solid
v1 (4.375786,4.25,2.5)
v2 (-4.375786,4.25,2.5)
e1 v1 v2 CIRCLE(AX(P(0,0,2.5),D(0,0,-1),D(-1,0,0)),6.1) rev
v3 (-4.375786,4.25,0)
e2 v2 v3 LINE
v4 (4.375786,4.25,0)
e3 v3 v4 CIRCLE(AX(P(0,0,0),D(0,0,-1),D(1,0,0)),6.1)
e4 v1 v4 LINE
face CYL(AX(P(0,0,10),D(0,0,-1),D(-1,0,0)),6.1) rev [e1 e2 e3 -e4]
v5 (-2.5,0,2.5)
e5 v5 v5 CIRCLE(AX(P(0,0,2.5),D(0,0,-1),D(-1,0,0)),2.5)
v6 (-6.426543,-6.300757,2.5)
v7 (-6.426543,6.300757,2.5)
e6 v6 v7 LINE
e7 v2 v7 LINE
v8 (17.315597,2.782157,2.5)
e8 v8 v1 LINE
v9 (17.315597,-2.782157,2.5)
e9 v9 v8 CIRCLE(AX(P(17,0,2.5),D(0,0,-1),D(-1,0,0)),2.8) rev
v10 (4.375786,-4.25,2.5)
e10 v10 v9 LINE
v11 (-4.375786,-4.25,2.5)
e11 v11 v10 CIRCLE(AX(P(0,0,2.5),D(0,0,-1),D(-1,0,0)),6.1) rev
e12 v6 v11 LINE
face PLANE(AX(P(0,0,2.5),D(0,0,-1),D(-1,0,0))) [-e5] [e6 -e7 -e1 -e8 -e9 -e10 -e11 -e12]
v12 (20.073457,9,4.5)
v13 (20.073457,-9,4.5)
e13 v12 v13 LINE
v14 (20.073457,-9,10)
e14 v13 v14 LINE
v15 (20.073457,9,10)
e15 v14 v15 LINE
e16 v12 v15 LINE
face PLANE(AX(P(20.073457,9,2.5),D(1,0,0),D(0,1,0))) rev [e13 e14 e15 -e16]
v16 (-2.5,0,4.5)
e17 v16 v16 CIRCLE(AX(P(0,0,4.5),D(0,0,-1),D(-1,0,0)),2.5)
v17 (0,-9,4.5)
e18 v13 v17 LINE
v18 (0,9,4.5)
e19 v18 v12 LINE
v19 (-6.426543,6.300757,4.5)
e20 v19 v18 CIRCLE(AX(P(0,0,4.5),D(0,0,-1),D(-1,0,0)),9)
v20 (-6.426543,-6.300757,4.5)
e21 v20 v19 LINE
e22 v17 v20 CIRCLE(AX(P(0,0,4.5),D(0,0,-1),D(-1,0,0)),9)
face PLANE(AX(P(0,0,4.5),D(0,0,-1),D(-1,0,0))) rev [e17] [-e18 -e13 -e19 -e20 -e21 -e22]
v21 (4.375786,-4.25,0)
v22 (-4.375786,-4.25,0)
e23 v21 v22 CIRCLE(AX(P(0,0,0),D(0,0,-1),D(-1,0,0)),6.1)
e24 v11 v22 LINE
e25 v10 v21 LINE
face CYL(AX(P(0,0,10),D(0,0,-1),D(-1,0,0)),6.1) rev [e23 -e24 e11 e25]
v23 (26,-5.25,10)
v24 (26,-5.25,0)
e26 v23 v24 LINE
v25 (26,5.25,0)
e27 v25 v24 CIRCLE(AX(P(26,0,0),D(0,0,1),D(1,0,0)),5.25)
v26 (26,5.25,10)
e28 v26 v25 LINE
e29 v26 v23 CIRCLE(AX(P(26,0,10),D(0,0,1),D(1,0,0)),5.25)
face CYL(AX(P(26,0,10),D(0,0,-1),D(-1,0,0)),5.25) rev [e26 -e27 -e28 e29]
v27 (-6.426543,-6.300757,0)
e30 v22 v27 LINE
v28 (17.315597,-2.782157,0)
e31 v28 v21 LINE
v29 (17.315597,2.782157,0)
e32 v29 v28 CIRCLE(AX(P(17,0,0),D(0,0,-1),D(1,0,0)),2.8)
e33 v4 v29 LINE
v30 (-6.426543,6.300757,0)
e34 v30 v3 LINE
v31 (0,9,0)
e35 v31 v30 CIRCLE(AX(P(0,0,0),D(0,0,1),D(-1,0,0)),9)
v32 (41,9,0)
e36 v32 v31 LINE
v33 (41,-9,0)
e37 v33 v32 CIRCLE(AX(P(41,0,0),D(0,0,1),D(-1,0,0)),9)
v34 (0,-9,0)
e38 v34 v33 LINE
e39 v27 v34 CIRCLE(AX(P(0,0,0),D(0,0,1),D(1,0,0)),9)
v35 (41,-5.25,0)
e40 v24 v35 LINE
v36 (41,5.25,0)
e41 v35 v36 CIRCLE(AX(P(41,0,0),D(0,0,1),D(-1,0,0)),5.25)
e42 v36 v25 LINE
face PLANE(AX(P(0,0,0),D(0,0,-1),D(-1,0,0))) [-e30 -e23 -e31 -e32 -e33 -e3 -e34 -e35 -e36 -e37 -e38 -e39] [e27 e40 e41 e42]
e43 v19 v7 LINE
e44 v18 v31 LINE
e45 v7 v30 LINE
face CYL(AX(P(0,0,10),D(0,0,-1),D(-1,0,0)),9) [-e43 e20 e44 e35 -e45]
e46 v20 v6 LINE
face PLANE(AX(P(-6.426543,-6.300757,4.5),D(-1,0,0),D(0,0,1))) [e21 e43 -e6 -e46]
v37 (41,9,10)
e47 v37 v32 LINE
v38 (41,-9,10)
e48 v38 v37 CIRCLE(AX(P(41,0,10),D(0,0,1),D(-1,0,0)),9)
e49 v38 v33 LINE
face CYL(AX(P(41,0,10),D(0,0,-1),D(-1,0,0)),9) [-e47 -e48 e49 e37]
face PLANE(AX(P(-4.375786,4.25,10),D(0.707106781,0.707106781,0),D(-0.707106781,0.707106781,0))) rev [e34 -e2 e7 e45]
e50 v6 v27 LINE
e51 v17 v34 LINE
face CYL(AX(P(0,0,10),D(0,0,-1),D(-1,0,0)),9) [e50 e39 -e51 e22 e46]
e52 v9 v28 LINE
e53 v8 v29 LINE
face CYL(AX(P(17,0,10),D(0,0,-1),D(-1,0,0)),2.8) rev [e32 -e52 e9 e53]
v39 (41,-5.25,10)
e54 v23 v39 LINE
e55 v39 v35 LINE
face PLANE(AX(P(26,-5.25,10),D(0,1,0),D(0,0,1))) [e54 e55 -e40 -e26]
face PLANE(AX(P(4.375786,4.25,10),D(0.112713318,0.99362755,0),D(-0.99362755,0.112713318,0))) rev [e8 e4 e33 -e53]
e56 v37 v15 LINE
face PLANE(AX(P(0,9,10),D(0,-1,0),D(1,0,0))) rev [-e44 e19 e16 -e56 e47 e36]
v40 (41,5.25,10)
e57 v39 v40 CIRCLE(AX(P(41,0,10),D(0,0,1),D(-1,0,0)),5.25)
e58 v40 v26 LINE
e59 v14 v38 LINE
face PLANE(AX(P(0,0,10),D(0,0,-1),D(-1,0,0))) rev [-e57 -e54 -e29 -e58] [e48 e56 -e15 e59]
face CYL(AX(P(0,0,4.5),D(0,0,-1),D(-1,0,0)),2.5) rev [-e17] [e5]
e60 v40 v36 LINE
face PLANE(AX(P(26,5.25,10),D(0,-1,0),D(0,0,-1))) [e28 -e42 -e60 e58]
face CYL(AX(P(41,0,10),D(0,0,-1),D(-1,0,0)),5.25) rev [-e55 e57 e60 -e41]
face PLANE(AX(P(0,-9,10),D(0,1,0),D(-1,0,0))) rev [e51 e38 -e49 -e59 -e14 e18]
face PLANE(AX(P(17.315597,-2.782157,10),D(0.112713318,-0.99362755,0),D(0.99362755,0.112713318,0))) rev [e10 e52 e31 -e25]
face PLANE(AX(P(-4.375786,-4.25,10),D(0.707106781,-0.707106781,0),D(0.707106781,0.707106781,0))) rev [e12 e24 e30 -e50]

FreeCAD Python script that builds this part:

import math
import FreeCAD as App
import Part
import Sketcher

V = App.Vector


def add_polygon(sketch, points):
    """Adds a closed chain of lines whose ends are joined by coincident constraints."""
    first, n = sketch.GeometryCount, len(points)
    for a, b in zip(points, points[1:] + points[:1]):
        sketch.addGeometry(Part.LineSegment(App.Vector(*a, 0), App.Vector(*b, 0)), False)
    for i in range(n):
        sketch.addConstraint(Sketcher.Constraint("Coincident", first + i, 2, first + (i + 1) % n, 1))

doc = App.newDocument("Part")
params = doc.addObject("Spreadsheet::Sheet", "Params")
for row, (alias, value) in enumerate([
    ("sketch1_radius", "9 mm"),
    ("sketch1_radius2", "6.1 mm"),
    ("sketch1_radius3", "2.8 mm"),
    ("sketch1_width", "41 mm"),
    ("sketch1_width2", "15 mm"),
    ("pad1_length", "10 mm"),
    ("sketch2_height", "18 mm"),
    ("sketch2_width", "26.5 mm"),
    ("pocket1_length", "7.5 mm"),
    ("sketch3_diameter", "5 mm"),
    ("sketch3_radius", "9 mm"),
    ("pad2_length", "2 mm"),
], start=1):
    params.set(f"A{row}", alias)
    params.set(f"B{row}", "=" + value)
    params.setAlias(f"B{row}", alias)

body = doc.addObject("PartDesign::Body", "Body")

# Sketch on XY plane
sketch1 = body.newObject("Sketcher::SketchObject", "Sketch")
sketch1.AttachmentSupport = (doc.getObject("XY_Plane"), [""])
sketch1.MapMode = "FlatFace"
sketch1.addGeometry(Part.LineSegment(V(-6.426543, 6.300757, 0), V(-4.375786, 4.25, 0)), False)
sketch1.addGeometry(Part.ArcOfCircle(Part.Circle(V(0, 0, 0), V(0, 0, 1), 6.1), math.radians(44.164543), math.radians(135.835457)), False)
sketch1.addGeometry(Part.LineSegment(V(4.375786, 4.25, 0), V(17.315597, 2.782157, 0)), False)
sketch1.addGeometry(Part.ArcOfCircle(Part.Circle(V(17, 0, 0), V(0, 0, 1), 2.8), math.radians(-83.52825), math.radians(83.52825)), False)
sketch1.addGeometry(Part.LineSegment(V(17.315597, -2.782157, 0), V(4.375786, -4.25, 0)), False)
sketch1.addGeometry(Part.ArcOfCircle(Part.Circle(V(0, 0, 0), V(0, 0, 1), 6.1), math.radians(-135.835457), math.radians(-44.164543)), False)
sketch1.addGeometry(Part.LineSegment(V(-4.375786, -4.25, 0), V(-6.426543, -6.300757, 0)), False)
sketch1.addGeometry(Part.ArcOfCircle(Part.Circle(V(0, 0, 0), V(0, 0, 1), 9), math.radians(-135.566244), math.radians(-90)), False)
sketch1.addGeometry(Part.LineSegment(V(0, -9, 0), V(41, -9, 0)), False)
sketch1.addGeometry(Part.ArcOfCircle(Part.Circle(V(41, 0, 0), V(0, 0, 1), 9), math.radians(-90), math.radians(90)), False)
sketch1.addGeometry(Part.LineSegment(V(41, 9, 0), V(0, 9, 0)), False)
sketch1.addGeometry(Part.ArcOfCircle(Part.Circle(V(0, 0, 0), V(0, 0, 1), 9), math.radians(90), math.radians(135.566244)), False)
sketch1.addGeometry(Part.LineSegment(V(26, 5.25, 0), V(41, 5.25, 0)), False)
sketch1.addGeometry(Part.ArcOfCircle(Part.Circle(V(41, 0, 0), V(0, 0, 1), 5.25), math.radians(-90), math.radians(90)), False)
sketch1.addGeometry(Part.LineSegment(V(41, -5.25, 0), V(26, -5.25, 0)), False)
sketch1.addGeometry(Part.ArcOfCircle(Part.Circle(V(26, 0, 0), V(0, 0, 1), 5.25), math.radians(90), math.radians(270)), False)
sketch1.addConstraint(Sketcher.Constraint("Coincident", 0, 2, 1, 2))
sketch1.addConstraint(Sketcher.Constraint("Coincident", 1, 1, 2, 1))
sketch1.addConstraint(Sketcher.Constraint("Tangent", 2, 2, 3, 2))
sketch1.addConstraint(Sketcher.Constraint("Tangent", 3, 1, 4, 1))
sketch1.addConstraint(Sketcher.Constraint("Coincident", 4, 2, 5, 2))
sketch1.addConstraint(Sketcher.Constraint("Coincident", 5, 1, 6, 1))
sketch1.addConstraint(Sketcher.Constraint("Coincident", 6, 2, 7, 1))
sketch1.addConstraint(Sketcher.Constraint("Tangent", 7, 2, 8, 1))
sketch1.addConstraint(Sketcher.Constraint("Tangent", 8, 2, 9, 1))
sketch1.addConstraint(Sketcher.Constraint("Tangent", 9, 2, 10, 1))
sketch1.addConstraint(Sketcher.Constraint("Tangent", 10, 2, 11, 1))
sketch1.addConstraint(Sketcher.Constraint("Coincident", 11, 2, 0, 1))
sketch1.addConstraint(Sketcher.Constraint("Tangent", 12, 2, 13, 2))
sketch1.addConstraint(Sketcher.Constraint("Tangent", 13, 1, 14, 1))
sketch1.addConstraint(Sketcher.Constraint("Tangent", 14, 2, 15, 2))
sketch1.addConstraint(Sketcher.Constraint("Tangent", 15, 1, 12, 1))
sketch1.addConstraint(Sketcher.Constraint("Horizontal", 8))
sketch1.addConstraint(Sketcher.Constraint("Horizontal", 10))
sketch1.addConstraint(Sketcher.Constraint("Horizontal", 12))
sketch1.addConstraint(Sketcher.Constraint("Horizontal", 14))
sketch1.addConstraint(Sketcher.Constraint("Coincident", 1, 3, -1, 1))
sketch1.addConstraint(Sketcher.Constraint("Coincident", 5, 3, -1, 1))
sketch1.addConstraint(Sketcher.Constraint("Coincident", 7, 3, -1, 1))
sketch1.addConstraint(Sketcher.Constraint("Coincident", 11, 3, -1, 1))
sketch1.addConstraint(Sketcher.Constraint("Coincident", 13, 3, 9, 3))
sketch1.addConstraint(Sketcher.Constraint("Equal", 1, 5))
sketch1.addConstraint(Sketcher.Constraint("Equal", 7, 9))
sketch1.addConstraint(Sketcher.Constraint("Symmetric", 2, 2, 3, 1, -1))
sketch1.addConstraint(Sketcher.Constraint("Perpendicular", 0, 6))
sketch1.addConstraint(Sketcher.Constraint("Horizontal", 0, 2, 1, 1))
sketch1.addConstraint(Sketcher.Constraint("Horizontal", 4, 2, 5, 1))
sketch1.addConstraint(Sketcher.Constraint("Vertical", 6, 2, 11, 2))
sketch1.addConstraint(Sketcher.Constraint("Radius", 7, 9.0))
sketch1.addConstraint(Sketcher.Constraint("Radius", 1, 6.1))
sketch1.addConstraint(Sketcher.Constraint("Radius", 3, 2.8))
sketch1.addConstraint(Sketcher.Constraint("DistanceX", 8, 1, 8, 2, 41.0))
sketch1.addConstraint(Sketcher.Constraint("DistanceX", 12, 1, 12, 2, 15.0))
sketch1.addConstraint(Sketcher.Constraint("Radius", 13, 5.25))
sketch1.addConstraint(Sketcher.Constraint("DistanceX", -1, 1, 3, 3, 17.0))
sketch1.addConstraint(Sketcher.Constraint("DistanceY", 4, 2, 1, 1, 8.5))
sketch1.setExpression("Constraints[32]", "Params.sketch1_radius")
sketch1.setExpression("Constraints[33]", "Params.sketch1_radius2")
sketch1.setExpression("Constraints[34]", "Params.sketch1_radius3")
sketch1.setExpression("Constraints[35]", "Params.sketch1_width")
sketch1.setExpression("Constraints[36]", "Params.sketch1_width2")
pad1 = body.newObject("PartDesign::Pad", "Pad")
pad1.Profile = sketch1
pad1.setExpression("Length", "Params.pad1_length")

# Sketch on XY plane
sketch2 = body.newObject("Sketcher::SketchObject", "Sketch001")
sketch2.AttachmentSupport = (doc.getObject("XY_Plane"), [""])
sketch2.MapMode = "FlatFace"
sketch2.AttachmentOffset = App.Placement(V(0, 0, 10), App.Rotation())
add_polygon(sketch2, [(-6.426543, 9), (-6.426543, -9), (20.073457, -9), (20.073457, 9)])  # lines 0-3
sketch2.addConstraint(Sketcher.Constraint("Vertical", 0))
sketch2.addConstraint(Sketcher.Constraint("Horizontal", 1))
sketch2.addConstraint(Sketcher.Constraint("Vertical", 2))
sketch2.addConstraint(Sketcher.Constraint("Horizontal", 3))
sketch2.addConstraint(Sketcher.Constraint("DistanceY", 0, 2, 0, 1, 18.0))
sketch2.addConstraint(Sketcher.Constraint("DistanceX", 1, 1, 1, 2, 26.5))
sketch2.addConstraint(Sketcher.Constraint("DistanceY", 0, 2, -1, 1, 9.0))
sketch2.addConstraint(Sketcher.Constraint("DistanceX", 0, 2, -1, 1, 6.426543))
sketch2.setExpression("Constraints[8]", "Params.sketch2_height")
sketch2.setExpression("Constraints[9]", "Params.sketch2_width")
pocket1 = body.newObject("PartDesign::Pocket", "Pocket")
pocket1.Profile = sketch2
pocket1.setExpression("Length", "Params.pocket1_length")

# Sketch on XY plane
sketch3 = body.newObject("Sketcher::SketchObject", "Sketch002")
sketch3.AttachmentSupport = (doc.getObject("XY_Plane"), [""])
sketch3.MapMode = "FlatFace"
sketch3.AttachmentOffset = App.Placement(V(0, 0, 2.5), App.Rotation())
sketch3.addGeometry(Part.LineSegment(V(20.073457, -9, 0), V(0, -9, 0)), False)
sketch3.addGeometry(Part.ArcOfCircle(Part.Circle(V(0, 0, 0), V(0, 0, 1), 9), math.radians(-135.566244), math.radians(-90)), False)
sketch3.addGeometry(Part.LineSegment(V(-6.426543, -6.300757, 0), V(-6.426543, 6.300757, 0)), False)
sketch3.addGeometry(Part.ArcOfCircle(Part.Circle(V(0, 0, 0), V(0, 0, 1), 9), math.radians(90), math.radians(135.566244)), False)
sketch3.addGeometry(Part.LineSegment(V(0, 9, 0), V(20.073457, 9, 0)), False)
sketch3.addGeometry(Part.LineSegment(V(20.073457, 9, 0), V(20.073457, -9, 0)), False)
sketch3.addGeometry(Part.Circle(V(0, 0, 0), V(0, 0, 1), 2.5), False)
sketch3.addConstraint(Sketcher.Constraint("Tangent", 0, 2, 1, 2))
sketch3.addConstraint(Sketcher.Constraint("Coincident", 1, 1, 2, 1))
sketch3.addConstraint(Sketcher.Constraint("Coincident", 2, 2, 3, 2))
sketch3.addConstraint(Sketcher.Constraint("Tangent", 3, 1, 4, 1))
sketch3.addConstraint(Sketcher.Constraint("Coincident", 4, 2, 5, 1))
sketch3.addConstraint(Sketcher.Constraint("Coincident", 5, 2, 0, 1))
sketch3.addConstraint(Sketcher.Constraint("Horizontal", 0))
sketch3.addConstraint(Sketcher.Constraint("Vertical", 2))
sketch3.addConstraint(Sketcher.Constraint("Horizontal", 4))
sketch3.addConstraint(Sketcher.Constraint("Vertical", 5))
sketch3.addConstraint(Sketcher.Constraint("Coincident", 1, 3, -1, 1))
sketch3.addConstraint(Sketcher.Constraint("Coincident", 3, 3, -1, 1))
sketch3.addConstraint(Sketcher.Constraint("Coincident", 6, 3, -1, 1))
sketch3.addConstraint(Sketcher.Constraint("Equal", 1, 3))
sketch3.addConstraint(Sketcher.Constraint("Diameter", 6, 5.0))
sketch3.addConstraint(Sketcher.Constraint("Radius", 1, 9.0))
sketch3.addConstraint(Sketcher.Constraint("DistanceX", 2, 2, 4, 2, 26.5))
sketch3.addConstraint(Sketcher.Constraint("DistanceX", 0, 2, 0, 1, 20.073457))
sketch3.setExpression("Constraints[14]", "Params.sketch3_diameter")
sketch3.setExpression("Constraints[15]", "Params.sketch3_radius")
pad2 = body.newObject("PartDesign::Pad", "Pad001")
pad2.Profile = sketch3
pad2.setExpression("Length", "Params.pad2_length")

doc.recompute()
